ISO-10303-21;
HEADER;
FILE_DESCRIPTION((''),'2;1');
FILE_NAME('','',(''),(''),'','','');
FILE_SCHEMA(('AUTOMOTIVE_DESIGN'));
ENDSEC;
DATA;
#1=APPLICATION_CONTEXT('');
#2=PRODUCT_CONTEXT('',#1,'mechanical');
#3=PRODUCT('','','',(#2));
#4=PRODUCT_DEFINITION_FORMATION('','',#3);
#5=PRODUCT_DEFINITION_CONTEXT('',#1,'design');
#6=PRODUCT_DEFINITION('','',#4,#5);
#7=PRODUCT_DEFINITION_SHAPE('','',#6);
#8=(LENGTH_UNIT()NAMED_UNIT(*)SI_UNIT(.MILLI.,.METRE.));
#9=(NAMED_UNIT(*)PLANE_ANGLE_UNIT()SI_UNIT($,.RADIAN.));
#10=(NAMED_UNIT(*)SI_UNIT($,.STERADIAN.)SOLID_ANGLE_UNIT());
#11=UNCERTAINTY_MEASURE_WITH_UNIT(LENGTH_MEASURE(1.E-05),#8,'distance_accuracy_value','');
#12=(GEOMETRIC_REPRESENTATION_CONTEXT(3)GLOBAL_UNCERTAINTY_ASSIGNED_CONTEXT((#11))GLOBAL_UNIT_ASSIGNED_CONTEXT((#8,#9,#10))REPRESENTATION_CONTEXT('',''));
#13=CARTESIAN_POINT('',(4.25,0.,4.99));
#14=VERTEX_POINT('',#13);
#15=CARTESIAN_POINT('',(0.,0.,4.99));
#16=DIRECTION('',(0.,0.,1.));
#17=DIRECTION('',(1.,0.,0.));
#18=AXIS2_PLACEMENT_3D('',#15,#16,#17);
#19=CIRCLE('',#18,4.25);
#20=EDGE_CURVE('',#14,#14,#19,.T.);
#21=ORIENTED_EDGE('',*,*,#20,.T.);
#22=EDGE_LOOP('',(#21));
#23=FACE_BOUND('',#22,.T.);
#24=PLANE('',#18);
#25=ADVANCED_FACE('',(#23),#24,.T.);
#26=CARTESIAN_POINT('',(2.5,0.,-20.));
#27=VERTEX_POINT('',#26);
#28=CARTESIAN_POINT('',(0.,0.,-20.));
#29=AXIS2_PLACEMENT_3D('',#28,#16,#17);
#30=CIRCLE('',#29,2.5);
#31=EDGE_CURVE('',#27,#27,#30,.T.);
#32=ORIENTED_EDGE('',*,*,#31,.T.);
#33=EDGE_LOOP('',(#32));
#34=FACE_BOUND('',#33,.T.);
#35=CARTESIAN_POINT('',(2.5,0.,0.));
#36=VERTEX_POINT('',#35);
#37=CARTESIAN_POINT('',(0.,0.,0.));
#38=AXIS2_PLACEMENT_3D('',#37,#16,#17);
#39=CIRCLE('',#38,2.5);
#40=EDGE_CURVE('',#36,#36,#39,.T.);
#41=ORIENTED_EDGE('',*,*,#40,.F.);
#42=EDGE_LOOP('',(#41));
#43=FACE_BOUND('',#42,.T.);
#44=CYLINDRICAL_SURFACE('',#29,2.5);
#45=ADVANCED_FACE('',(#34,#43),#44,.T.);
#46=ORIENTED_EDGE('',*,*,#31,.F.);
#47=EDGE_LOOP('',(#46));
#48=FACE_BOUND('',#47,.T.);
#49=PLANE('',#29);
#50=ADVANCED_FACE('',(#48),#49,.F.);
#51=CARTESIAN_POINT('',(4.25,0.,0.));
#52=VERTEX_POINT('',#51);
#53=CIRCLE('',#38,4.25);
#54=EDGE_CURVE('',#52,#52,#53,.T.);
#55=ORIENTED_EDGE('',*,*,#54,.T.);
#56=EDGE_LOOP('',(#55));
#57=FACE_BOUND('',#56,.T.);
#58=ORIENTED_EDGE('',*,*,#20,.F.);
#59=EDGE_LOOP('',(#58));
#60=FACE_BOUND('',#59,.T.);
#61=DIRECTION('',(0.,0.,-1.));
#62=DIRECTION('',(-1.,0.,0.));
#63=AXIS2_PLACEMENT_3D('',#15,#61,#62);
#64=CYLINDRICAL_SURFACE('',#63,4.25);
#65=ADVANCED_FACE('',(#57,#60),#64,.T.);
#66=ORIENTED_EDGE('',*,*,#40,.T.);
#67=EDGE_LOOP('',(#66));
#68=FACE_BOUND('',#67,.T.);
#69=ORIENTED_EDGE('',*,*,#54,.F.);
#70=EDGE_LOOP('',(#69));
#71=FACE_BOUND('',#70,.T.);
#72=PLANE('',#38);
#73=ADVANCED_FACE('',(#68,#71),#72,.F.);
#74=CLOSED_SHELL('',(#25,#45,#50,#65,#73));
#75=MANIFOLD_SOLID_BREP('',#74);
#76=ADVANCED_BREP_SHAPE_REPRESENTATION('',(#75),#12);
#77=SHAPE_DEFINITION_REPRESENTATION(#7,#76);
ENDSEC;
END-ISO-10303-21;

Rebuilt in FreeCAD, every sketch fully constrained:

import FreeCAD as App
import Part
import Sketcher
from FreeCAD import Vector

doc = App.newDocument("Part")
body = doc.addObject("PartDesign::Body", "Body")

# Sketch on XY plane
sketch1 = body.newObject("Sketcher::SketchObject", "Sketch")
sketch1.AttachmentSupport = (doc.getObject("XY_Plane"), [""])
sketch1.MapMode = "FlatFace"
sketch1.addGeometry(Part.Circle(Vector(0, 0, 0), Vector(0, 0, 1), 2.5), False)
sketch1.addConstraint([
    Sketcher.Constraint("Coincident", 0, 3, -1, 1),
    Sketcher.Constraint("Diameter", 0, 5.0),
])
pad1 = body.newObject("PartDesign::Pad", "Pad")
pad1.Profile = sketch1
pad1.Length = 20
pad1.Reversed = True

# Sketch on XY plane
sketch2 = body.newObject("Sketcher::SketchObject", "Sketch001")
sketch2.AttachmentSupport = (doc.getObject("XY_Plane"), [""])
sketch2.MapMode = "FlatFace"
sketch2.addGeometry(Part.Circle(Vector(0, 0, 0), Vector(0, 0, 1), 4.2), False)
sketch2.addConstraint([
    Sketcher.Constraint("Coincident", 0, 3, -1, 1),
    Sketcher.Constraint("Diameter", 0, 8.5),
])
pad2 = body.newObject("PartDesign::Pad", "Pad001")
pad2.Profile = sketch2
pad2.Length = 4.99

doc.recompute()
